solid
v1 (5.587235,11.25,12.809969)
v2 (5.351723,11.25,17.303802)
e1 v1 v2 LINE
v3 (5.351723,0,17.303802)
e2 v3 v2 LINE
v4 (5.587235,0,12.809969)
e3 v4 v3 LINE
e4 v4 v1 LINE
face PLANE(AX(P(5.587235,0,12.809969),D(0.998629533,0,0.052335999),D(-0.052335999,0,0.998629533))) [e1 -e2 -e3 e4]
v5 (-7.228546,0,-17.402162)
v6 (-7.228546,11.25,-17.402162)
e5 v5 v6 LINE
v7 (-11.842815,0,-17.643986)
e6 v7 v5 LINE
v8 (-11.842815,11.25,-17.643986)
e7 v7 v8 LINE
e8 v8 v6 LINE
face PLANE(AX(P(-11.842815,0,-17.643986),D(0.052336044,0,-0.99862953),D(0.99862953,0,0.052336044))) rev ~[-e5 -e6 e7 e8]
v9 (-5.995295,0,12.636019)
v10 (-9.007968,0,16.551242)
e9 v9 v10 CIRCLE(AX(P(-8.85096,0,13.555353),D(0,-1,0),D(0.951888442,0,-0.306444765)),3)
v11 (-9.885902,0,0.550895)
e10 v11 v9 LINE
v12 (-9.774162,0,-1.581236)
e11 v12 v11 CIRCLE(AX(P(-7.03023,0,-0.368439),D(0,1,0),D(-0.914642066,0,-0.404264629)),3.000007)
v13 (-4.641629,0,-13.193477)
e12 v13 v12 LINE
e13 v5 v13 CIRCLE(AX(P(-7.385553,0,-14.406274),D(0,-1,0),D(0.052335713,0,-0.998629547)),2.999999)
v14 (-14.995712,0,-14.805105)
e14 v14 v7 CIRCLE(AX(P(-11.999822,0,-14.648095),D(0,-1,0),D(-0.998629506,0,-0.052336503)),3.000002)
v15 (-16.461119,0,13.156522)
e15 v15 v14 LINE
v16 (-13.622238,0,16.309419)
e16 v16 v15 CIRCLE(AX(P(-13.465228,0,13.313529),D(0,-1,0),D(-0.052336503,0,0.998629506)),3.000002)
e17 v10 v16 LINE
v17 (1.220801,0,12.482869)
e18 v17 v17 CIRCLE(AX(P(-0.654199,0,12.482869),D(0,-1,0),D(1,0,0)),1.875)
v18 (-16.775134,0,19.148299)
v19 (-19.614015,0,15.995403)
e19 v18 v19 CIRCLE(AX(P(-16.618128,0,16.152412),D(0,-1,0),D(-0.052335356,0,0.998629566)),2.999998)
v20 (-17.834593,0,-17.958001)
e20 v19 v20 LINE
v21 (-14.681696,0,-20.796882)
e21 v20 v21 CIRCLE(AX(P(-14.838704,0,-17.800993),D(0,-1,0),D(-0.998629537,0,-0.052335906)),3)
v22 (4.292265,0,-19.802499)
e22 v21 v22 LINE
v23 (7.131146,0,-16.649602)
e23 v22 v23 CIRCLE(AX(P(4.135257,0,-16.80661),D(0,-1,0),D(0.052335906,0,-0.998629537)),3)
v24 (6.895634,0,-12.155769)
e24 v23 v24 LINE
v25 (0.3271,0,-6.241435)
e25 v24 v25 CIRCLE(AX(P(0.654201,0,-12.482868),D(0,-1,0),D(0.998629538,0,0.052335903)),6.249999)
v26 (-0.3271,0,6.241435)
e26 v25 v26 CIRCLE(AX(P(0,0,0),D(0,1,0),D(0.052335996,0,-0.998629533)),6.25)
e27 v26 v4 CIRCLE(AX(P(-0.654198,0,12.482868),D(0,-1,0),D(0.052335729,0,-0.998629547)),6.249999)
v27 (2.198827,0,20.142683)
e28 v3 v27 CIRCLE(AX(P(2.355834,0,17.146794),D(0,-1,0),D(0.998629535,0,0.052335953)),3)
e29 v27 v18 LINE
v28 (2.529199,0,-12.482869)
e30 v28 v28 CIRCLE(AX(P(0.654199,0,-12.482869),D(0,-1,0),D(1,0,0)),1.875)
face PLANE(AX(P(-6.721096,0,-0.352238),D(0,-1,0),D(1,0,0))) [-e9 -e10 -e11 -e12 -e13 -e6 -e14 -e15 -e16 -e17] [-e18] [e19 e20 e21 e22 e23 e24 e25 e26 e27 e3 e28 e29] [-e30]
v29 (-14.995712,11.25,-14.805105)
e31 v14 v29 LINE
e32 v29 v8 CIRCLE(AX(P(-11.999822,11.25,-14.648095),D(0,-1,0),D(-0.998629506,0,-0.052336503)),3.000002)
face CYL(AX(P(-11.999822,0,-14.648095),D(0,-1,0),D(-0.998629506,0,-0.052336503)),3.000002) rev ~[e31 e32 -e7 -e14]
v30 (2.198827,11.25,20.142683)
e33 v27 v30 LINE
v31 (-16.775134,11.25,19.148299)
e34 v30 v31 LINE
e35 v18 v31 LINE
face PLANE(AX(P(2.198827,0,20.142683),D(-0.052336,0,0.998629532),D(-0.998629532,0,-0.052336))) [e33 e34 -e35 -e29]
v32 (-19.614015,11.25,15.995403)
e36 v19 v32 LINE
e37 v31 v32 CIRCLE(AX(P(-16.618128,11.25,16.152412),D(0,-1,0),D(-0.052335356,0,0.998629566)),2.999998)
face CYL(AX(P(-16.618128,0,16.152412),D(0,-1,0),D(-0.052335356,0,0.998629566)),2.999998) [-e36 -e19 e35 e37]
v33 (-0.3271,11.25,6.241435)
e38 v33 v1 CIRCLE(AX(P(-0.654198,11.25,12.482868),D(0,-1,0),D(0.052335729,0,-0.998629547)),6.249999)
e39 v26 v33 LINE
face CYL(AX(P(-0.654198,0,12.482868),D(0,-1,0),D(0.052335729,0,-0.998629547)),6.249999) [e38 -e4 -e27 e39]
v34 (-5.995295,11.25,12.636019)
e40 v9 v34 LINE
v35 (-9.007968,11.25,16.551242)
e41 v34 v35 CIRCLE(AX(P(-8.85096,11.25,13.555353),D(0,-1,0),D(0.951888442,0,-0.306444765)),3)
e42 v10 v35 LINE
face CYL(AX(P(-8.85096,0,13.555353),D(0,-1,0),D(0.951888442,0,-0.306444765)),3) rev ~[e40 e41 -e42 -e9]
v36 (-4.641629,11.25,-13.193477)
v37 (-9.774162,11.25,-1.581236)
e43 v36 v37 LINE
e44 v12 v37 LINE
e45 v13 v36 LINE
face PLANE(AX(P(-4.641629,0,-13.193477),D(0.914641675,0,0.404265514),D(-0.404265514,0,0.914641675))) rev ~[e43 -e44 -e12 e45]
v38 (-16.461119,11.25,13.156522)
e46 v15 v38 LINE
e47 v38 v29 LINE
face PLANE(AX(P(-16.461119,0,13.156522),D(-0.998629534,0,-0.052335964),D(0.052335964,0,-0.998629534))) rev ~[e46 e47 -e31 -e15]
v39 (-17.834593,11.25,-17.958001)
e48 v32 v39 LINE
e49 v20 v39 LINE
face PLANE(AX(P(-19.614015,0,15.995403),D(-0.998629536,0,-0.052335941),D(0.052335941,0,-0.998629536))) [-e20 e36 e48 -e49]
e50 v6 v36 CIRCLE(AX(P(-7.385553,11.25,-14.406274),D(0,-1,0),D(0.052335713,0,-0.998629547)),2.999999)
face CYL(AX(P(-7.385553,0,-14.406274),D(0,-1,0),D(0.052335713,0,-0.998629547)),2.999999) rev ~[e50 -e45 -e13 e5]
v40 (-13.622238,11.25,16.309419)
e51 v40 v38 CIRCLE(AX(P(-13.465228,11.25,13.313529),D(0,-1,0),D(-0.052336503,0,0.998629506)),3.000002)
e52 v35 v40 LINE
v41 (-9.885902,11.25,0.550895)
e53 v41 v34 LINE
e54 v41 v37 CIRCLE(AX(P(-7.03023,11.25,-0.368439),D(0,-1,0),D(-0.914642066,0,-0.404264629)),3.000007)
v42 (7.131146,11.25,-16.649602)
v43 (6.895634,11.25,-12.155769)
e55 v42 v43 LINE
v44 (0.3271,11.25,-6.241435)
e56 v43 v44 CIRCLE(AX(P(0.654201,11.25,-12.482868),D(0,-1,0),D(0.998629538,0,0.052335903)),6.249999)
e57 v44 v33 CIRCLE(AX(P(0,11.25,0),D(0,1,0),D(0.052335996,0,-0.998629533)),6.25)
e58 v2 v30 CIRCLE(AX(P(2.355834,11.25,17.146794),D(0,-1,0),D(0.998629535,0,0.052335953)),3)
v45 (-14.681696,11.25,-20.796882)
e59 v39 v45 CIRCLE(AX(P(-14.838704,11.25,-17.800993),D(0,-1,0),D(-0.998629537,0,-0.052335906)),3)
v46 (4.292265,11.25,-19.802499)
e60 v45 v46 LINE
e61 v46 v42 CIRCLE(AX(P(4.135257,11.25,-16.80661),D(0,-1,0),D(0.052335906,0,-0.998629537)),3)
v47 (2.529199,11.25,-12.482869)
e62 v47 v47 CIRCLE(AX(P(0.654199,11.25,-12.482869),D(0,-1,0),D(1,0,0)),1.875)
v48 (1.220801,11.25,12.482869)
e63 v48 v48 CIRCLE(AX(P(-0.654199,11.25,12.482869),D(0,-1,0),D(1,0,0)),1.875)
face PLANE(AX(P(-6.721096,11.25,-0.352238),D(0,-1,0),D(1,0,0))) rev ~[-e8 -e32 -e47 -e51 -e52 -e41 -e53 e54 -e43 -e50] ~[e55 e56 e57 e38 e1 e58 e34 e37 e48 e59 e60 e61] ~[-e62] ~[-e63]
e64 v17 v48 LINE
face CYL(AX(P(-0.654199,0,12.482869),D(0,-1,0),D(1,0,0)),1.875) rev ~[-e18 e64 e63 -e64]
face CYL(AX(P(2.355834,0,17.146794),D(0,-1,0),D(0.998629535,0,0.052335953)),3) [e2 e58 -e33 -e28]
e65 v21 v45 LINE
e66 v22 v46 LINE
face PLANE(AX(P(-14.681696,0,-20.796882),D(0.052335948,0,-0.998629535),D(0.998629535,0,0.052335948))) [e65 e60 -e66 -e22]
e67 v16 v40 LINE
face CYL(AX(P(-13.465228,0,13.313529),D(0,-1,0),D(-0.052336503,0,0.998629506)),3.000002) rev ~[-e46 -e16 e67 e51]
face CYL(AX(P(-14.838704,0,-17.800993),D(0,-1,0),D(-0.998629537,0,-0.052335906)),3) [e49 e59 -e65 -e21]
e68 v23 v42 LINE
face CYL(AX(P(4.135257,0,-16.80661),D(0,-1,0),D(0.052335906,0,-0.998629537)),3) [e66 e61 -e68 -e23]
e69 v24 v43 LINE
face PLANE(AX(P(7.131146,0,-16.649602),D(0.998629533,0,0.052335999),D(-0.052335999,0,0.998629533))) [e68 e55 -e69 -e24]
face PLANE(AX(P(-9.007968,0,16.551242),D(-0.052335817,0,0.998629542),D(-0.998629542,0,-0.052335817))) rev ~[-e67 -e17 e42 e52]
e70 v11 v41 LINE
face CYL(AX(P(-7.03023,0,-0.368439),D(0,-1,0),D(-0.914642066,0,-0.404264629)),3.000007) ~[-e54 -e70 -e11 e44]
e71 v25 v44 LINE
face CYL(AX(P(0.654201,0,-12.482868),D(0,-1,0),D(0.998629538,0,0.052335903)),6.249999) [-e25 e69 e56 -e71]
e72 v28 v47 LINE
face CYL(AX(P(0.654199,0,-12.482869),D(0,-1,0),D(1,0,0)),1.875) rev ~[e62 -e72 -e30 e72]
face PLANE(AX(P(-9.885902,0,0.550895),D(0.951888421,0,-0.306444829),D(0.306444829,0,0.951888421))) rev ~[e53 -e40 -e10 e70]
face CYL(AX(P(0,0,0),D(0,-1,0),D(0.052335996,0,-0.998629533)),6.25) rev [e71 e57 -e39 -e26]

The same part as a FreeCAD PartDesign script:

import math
import FreeCAD as App
import Part
import Sketcher

V = App.Vector
Q = App.Units.Quantity

doc = App.newDocument("Part")
body = doc.addObject("PartDesign::Body", "Body")

sketch1 = body.newObject("Sketcher::SketchObject", "Sketch")
sketch1.AttachmentSupport = (doc.getObject("XZ_Plane"), [""])
sketch1.MapMode = "FlatFace"
sketch1.addGeometry([
    Part.ArcOfCircle(Part.Circle(V(-0.7, 12.5, 0), V(0, 0, 1), 6.2), math.radians(-87), math.radians(3)),
    Part.LineSegment(V(5.6, 12.8, 0), V(5.4, 17.3, 0)),
    Part.ArcOfCircle(Part.Circle(V(2.4, 17.1, 0), V(0, 0, 1), 3), math.radians(3), math.radians(93)),
    Part.LineSegment(V(2.2, 20.1, 0), V(-16.8, 19.1, 0)),
    Part.ArcOfCircle(Part.Circle(V(-16.6, 16.2, 0), V(0, 0, 1), 3), math.radians(93), math.radians(183)),
    Part.LineSegment(V(-19.6, 16, 0), V(-17.8, -18, 0)),
    Part.ArcOfCircle(Part.Circle(V(-14.8, -17.8, 0), V(0, 0, 1), 3), math.radians(-177), math.radians(-87)),
    Part.LineSegment(V(-14.7, -20.8, 0), V(4.3, -19.8, 0)),
    Part.ArcOfCircle(Part.Circle(V(4.1, -16.8, 0), V(0, 0, 1), 3), math.radians(-87), math.radians(3)),
    Part.LineSegment(V(7.1, -16.6, 0), V(6.9, -12.2, 0)),
    Part.ArcOfCircle(Part.Circle(V(0.7, -12.5, 0), V(0, 0, 1), 6.2), math.radians(3), math.radians(93)),
    Part.ArcOfCircle(Part.Circle(V(0, 0, 0), V(0, 0, 1), 6.3), math.radians(93), math.radians(273)),
    Part.Circle(V(0.7, -12.5, 0), V(0, 0, 1), 1.9),
    Part.Circle(V(-0.7, 12.5, 0), V(0, 0, 1), 1.9),
], False)
sketch1.addConstraint([
    Sketcher.Constraint("Tangent", 0, 2, 1, 1),
    Sketcher.Constraint("Tangent", 1, 2, 2, 1),
    Sketcher.Constraint("Tangent", 2, 2, 3, 1),
    Sketcher.Constraint("Tangent", 3, 2, 4, 1),
    Sketcher.Constraint("Tangent", 4, 2, 5, 1),
    Sketcher.Constraint("Tangent", 5, 2, 6, 1),
    Sketcher.Constraint("Tangent", 6, 2, 7, 1),
    Sketcher.Constraint("Tangent", 7, 2, 8, 1),
    Sketcher.Constraint("Tangent", 8, 2, 9, 1),
    Sketcher.Constraint("Tangent", 9, 2, 10, 1),
    Sketcher.Constraint("Tangent", 10, 2, 11, 2),
    Sketcher.Constraint("Tangent", 11, 1, 0, 1),
    Sketcher.Constraint("Coincident", 11, 3, -1, 1),
    Sketcher.Constraint("Coincident", 12, 3, 10, 3),
    Sketcher.Constraint("Coincident", 13, 3, 0, 3),
    Sketcher.Constraint("Equal", 2, 4),
    Sketcher.Constraint("Equal", 4, 6),
    Sketcher.Constraint("Equal", 6, 8),
    Sketcher.Constraint("Equal", 0, 10),
    Sketcher.Constraint("Equal", 10, 11),
    Sketcher.Constraint("Equal", 12, 13),
    Sketcher.Constraint("Perpendicular", 1, 3),
    Sketcher.Constraint("Perpendicular", 3, 5),
    Sketcher.Constraint("Perpendicular", 5, 7),
    Sketcher.Constraint("Perpendicular", 7, 9),
    Sketcher.Constraint("Equal", 3, 7),
    Sketcher.Constraint("Equal", 1, 9),
    Sketcher.Constraint("Radius", 2, Q("3 mm")),
    Sketcher.Constraint("Diameter", 12, Q("3.75 mm")),
    Sketcher.Constraint("Angle", 1, Q("93.000002 deg")),
    Sketcher.Constraint("Radius", 0, Q("6.249999 mm")),
    Sketcher.Constraint("Distance", 3, Q("19 mm")),
    Sketcher.Constraint("Distance", 5, Q("34 mm")),
    Sketcher.Constraint("DistanceY", 5, 2, -1, 1, Q("17.958001 mm")),
])
pad1 = body.newObject("PartDesign::Pad", "Pad")
pad1.Profile = sketch1
pad1.Length = 11.25
pad1.Reversed = True

sketch2 = body.newObject("Sketcher::SketchObject", "Sketch001")
sketch2.AttachmentSupport = (doc.getObject("XZ_Plane"), [""])
sketch2.MapMode = "FlatFace"
sketch2.addGeometry([
    Part.ArcOfCircle(Part.Circle(V(-12, -14.6, 0), V(0, 0, 1), 3), math.radians(-177), math.radians(-87)),
    Part.LineSegment(V(-11.8, -17.6, 0), V(-7.2, -17.4, 0)),
    Part.ArcOfCircle(Part.Circle(V(-7.4, -14.4, 0), V(0, 0, 1), 3), math.radians(-87), math.radians(24)),
    Part.LineSegment(V(-4.6, -13.2, 0), V(-9.8, -1.6, 0)),
    Part.ArcOfCircle(Part.Circle(V(-7, -0.4, 0), V(0, 0, 1), 3), math.radians(162), math.radians(204)),
    Part.LineSegment(V(-9.9, 0.6, 0), V(-6, 12.6, 0)),
    Part.ArcOfCircle(Part.Circle(V(-8.9, 13.6, 0), V(0, 0, 1), 3), math.radians(-18), math.radians(93)),
    Part.LineSegment(V(-9, 16.6, 0), V(-13.6, 16.3, 0)),
    Part.ArcOfCircle(Part.Circle(V(-13.5, 13.3, 0), V(0, 0, 1), 3), math.radians(93), math.radians(183)),
    Part.LineSegment(V(-16.5, 13.2, 0), V(-15, -14.8, 0)),
], False)
sketch2.addConstraint([
    Sketcher.Constraint("Tangent", 0, 2, 1, 1),
    Sketcher.Constraint("Tangent", 1, 2, 2, 1),
    Sketcher.Constraint("Tangent", 2, 2, 3, 1),
    Sketcher.Constraint("Tangent", 3, 2, 4, 2),
    Sketcher.Constraint("Tangent", 4, 1, 5, 1),
    Sketcher.Constraint("Tangent", 5, 2, 6, 1),
    Sketcher.Constraint("Tangent", 6, 2, 7, 1),
    Sketcher.Constraint("Tangent", 7, 2, 8, 1),
    Sketcher.Constraint("Tangent", 8, 2, 9, 1),
    Sketcher.Constraint("Tangent", 9, 2, 0, 1),
    Sketcher.Constraint("Equal", 2, 6),
    Sketcher.Constraint("Equal", 6, 8),
    Sketcher.Constraint("Parallel", 1, 7),
    Sketcher.Constraint("Perpendicular", 7, 9),
    Sketcher.Constraint("Equal", 3, 5),
    Sketcher.Constraint("Equal", 1, 7),
    Sketcher.Constraint("Radius", 0, Q("3.000002 mm")),
    Sketcher.Constraint("Radius", 2, Q("2.999999 mm")),
    Sketcher.Constraint("Angle", 1, Q("3.000005 deg")),
    Sketcher.Constraint("Distance", 9, Q("28 mm")),
    Sketcher.Constraint("Radius", 4, Q("3.000007 mm")),
    Sketcher.Constraint("DistanceX", 8, 3, 4, 3, Q("6.434999 mm")),
    Sketcher.Constraint("Distance", 1, Q("4.620601 mm")),
    Sketcher.Constraint("DistanceX", 0, 3, -1, 1, Q("11.999822 mm")),
    Sketcher.Constraint("DistanceY", 4, 3, -1, 1, Q("0.368439 mm")),
])
pocket1 = body.newObject("PartDesign::Pocket", "Pocket")
pocket1.Profile = sketch2
pocket1.Length = 25

doc.recompute()
